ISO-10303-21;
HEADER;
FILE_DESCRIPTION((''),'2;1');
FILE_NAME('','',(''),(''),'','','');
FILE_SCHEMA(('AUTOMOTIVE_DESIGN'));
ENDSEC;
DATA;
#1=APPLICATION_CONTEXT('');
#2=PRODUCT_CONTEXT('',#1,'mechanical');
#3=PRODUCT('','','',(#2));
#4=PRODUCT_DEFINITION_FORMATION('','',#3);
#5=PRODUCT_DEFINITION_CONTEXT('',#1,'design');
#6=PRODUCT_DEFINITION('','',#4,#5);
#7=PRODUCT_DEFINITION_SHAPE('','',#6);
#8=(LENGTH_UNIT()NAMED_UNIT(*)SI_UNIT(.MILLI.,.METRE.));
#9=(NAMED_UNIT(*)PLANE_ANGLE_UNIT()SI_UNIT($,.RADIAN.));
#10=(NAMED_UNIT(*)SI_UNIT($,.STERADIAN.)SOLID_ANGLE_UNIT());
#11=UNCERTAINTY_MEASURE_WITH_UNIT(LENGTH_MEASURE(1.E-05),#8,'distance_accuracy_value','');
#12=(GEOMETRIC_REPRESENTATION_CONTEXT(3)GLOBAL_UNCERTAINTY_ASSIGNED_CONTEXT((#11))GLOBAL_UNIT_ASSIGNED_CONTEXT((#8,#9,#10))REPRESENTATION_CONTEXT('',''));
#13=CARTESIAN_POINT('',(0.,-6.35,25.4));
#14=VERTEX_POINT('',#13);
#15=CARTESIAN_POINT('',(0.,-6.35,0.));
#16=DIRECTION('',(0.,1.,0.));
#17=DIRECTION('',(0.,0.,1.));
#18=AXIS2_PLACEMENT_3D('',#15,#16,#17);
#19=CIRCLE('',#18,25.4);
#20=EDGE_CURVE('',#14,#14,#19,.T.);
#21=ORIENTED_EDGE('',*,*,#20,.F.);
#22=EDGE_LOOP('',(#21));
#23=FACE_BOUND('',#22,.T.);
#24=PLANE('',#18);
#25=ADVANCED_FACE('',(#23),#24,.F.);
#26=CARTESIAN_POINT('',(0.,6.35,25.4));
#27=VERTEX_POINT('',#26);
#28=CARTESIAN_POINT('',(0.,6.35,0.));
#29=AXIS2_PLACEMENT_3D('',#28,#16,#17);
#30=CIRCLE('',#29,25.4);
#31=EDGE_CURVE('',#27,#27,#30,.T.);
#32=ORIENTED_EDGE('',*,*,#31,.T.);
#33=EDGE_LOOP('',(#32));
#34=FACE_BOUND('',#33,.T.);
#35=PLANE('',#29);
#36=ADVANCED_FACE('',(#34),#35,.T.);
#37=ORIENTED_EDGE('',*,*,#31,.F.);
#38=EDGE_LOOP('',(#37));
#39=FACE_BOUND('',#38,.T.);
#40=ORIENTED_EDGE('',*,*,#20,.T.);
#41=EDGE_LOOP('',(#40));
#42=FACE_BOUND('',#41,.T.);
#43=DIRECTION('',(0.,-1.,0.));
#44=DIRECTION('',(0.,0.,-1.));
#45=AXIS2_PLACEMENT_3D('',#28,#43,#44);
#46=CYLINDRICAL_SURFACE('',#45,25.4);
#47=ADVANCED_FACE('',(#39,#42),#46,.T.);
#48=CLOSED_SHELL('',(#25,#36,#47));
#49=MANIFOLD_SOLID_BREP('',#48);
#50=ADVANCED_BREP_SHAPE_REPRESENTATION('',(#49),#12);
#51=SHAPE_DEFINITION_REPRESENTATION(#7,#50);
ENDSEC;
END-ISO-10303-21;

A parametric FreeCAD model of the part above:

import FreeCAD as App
import Part
import Sketcher
from FreeCAD import Vector
Q = App.Units.Quantity

doc = App.newDocument("Part")
body = doc.addObject("PartDesign::Body", "Body")

sketch1 = body.newObject("Sketcher::SketchObject", "Sketch")
sketch1.AttachmentSupport = (doc.getObject("XZ_Plane"), [""])
sketch1.MapMode = "FlatFace"
sketch1.addGeometry(Part.Circle(Vector(0, 0, 0), Vector(0, 0, 1), 25), False)
sketch1.addConstraint(Sketcher.Constraint("Coincident", 0, 3, -1, 1))
sketch1.addConstraint(Sketcher.Constraint("Diameter", 0, Q("2 in")))
pad1 = body.newObject("PartDesign::Pad", "Pad")
pad1.Profile = sketch1
pad1.Length = Q("0.5 in")
pad1.Midplane = True

doc.recompute()
